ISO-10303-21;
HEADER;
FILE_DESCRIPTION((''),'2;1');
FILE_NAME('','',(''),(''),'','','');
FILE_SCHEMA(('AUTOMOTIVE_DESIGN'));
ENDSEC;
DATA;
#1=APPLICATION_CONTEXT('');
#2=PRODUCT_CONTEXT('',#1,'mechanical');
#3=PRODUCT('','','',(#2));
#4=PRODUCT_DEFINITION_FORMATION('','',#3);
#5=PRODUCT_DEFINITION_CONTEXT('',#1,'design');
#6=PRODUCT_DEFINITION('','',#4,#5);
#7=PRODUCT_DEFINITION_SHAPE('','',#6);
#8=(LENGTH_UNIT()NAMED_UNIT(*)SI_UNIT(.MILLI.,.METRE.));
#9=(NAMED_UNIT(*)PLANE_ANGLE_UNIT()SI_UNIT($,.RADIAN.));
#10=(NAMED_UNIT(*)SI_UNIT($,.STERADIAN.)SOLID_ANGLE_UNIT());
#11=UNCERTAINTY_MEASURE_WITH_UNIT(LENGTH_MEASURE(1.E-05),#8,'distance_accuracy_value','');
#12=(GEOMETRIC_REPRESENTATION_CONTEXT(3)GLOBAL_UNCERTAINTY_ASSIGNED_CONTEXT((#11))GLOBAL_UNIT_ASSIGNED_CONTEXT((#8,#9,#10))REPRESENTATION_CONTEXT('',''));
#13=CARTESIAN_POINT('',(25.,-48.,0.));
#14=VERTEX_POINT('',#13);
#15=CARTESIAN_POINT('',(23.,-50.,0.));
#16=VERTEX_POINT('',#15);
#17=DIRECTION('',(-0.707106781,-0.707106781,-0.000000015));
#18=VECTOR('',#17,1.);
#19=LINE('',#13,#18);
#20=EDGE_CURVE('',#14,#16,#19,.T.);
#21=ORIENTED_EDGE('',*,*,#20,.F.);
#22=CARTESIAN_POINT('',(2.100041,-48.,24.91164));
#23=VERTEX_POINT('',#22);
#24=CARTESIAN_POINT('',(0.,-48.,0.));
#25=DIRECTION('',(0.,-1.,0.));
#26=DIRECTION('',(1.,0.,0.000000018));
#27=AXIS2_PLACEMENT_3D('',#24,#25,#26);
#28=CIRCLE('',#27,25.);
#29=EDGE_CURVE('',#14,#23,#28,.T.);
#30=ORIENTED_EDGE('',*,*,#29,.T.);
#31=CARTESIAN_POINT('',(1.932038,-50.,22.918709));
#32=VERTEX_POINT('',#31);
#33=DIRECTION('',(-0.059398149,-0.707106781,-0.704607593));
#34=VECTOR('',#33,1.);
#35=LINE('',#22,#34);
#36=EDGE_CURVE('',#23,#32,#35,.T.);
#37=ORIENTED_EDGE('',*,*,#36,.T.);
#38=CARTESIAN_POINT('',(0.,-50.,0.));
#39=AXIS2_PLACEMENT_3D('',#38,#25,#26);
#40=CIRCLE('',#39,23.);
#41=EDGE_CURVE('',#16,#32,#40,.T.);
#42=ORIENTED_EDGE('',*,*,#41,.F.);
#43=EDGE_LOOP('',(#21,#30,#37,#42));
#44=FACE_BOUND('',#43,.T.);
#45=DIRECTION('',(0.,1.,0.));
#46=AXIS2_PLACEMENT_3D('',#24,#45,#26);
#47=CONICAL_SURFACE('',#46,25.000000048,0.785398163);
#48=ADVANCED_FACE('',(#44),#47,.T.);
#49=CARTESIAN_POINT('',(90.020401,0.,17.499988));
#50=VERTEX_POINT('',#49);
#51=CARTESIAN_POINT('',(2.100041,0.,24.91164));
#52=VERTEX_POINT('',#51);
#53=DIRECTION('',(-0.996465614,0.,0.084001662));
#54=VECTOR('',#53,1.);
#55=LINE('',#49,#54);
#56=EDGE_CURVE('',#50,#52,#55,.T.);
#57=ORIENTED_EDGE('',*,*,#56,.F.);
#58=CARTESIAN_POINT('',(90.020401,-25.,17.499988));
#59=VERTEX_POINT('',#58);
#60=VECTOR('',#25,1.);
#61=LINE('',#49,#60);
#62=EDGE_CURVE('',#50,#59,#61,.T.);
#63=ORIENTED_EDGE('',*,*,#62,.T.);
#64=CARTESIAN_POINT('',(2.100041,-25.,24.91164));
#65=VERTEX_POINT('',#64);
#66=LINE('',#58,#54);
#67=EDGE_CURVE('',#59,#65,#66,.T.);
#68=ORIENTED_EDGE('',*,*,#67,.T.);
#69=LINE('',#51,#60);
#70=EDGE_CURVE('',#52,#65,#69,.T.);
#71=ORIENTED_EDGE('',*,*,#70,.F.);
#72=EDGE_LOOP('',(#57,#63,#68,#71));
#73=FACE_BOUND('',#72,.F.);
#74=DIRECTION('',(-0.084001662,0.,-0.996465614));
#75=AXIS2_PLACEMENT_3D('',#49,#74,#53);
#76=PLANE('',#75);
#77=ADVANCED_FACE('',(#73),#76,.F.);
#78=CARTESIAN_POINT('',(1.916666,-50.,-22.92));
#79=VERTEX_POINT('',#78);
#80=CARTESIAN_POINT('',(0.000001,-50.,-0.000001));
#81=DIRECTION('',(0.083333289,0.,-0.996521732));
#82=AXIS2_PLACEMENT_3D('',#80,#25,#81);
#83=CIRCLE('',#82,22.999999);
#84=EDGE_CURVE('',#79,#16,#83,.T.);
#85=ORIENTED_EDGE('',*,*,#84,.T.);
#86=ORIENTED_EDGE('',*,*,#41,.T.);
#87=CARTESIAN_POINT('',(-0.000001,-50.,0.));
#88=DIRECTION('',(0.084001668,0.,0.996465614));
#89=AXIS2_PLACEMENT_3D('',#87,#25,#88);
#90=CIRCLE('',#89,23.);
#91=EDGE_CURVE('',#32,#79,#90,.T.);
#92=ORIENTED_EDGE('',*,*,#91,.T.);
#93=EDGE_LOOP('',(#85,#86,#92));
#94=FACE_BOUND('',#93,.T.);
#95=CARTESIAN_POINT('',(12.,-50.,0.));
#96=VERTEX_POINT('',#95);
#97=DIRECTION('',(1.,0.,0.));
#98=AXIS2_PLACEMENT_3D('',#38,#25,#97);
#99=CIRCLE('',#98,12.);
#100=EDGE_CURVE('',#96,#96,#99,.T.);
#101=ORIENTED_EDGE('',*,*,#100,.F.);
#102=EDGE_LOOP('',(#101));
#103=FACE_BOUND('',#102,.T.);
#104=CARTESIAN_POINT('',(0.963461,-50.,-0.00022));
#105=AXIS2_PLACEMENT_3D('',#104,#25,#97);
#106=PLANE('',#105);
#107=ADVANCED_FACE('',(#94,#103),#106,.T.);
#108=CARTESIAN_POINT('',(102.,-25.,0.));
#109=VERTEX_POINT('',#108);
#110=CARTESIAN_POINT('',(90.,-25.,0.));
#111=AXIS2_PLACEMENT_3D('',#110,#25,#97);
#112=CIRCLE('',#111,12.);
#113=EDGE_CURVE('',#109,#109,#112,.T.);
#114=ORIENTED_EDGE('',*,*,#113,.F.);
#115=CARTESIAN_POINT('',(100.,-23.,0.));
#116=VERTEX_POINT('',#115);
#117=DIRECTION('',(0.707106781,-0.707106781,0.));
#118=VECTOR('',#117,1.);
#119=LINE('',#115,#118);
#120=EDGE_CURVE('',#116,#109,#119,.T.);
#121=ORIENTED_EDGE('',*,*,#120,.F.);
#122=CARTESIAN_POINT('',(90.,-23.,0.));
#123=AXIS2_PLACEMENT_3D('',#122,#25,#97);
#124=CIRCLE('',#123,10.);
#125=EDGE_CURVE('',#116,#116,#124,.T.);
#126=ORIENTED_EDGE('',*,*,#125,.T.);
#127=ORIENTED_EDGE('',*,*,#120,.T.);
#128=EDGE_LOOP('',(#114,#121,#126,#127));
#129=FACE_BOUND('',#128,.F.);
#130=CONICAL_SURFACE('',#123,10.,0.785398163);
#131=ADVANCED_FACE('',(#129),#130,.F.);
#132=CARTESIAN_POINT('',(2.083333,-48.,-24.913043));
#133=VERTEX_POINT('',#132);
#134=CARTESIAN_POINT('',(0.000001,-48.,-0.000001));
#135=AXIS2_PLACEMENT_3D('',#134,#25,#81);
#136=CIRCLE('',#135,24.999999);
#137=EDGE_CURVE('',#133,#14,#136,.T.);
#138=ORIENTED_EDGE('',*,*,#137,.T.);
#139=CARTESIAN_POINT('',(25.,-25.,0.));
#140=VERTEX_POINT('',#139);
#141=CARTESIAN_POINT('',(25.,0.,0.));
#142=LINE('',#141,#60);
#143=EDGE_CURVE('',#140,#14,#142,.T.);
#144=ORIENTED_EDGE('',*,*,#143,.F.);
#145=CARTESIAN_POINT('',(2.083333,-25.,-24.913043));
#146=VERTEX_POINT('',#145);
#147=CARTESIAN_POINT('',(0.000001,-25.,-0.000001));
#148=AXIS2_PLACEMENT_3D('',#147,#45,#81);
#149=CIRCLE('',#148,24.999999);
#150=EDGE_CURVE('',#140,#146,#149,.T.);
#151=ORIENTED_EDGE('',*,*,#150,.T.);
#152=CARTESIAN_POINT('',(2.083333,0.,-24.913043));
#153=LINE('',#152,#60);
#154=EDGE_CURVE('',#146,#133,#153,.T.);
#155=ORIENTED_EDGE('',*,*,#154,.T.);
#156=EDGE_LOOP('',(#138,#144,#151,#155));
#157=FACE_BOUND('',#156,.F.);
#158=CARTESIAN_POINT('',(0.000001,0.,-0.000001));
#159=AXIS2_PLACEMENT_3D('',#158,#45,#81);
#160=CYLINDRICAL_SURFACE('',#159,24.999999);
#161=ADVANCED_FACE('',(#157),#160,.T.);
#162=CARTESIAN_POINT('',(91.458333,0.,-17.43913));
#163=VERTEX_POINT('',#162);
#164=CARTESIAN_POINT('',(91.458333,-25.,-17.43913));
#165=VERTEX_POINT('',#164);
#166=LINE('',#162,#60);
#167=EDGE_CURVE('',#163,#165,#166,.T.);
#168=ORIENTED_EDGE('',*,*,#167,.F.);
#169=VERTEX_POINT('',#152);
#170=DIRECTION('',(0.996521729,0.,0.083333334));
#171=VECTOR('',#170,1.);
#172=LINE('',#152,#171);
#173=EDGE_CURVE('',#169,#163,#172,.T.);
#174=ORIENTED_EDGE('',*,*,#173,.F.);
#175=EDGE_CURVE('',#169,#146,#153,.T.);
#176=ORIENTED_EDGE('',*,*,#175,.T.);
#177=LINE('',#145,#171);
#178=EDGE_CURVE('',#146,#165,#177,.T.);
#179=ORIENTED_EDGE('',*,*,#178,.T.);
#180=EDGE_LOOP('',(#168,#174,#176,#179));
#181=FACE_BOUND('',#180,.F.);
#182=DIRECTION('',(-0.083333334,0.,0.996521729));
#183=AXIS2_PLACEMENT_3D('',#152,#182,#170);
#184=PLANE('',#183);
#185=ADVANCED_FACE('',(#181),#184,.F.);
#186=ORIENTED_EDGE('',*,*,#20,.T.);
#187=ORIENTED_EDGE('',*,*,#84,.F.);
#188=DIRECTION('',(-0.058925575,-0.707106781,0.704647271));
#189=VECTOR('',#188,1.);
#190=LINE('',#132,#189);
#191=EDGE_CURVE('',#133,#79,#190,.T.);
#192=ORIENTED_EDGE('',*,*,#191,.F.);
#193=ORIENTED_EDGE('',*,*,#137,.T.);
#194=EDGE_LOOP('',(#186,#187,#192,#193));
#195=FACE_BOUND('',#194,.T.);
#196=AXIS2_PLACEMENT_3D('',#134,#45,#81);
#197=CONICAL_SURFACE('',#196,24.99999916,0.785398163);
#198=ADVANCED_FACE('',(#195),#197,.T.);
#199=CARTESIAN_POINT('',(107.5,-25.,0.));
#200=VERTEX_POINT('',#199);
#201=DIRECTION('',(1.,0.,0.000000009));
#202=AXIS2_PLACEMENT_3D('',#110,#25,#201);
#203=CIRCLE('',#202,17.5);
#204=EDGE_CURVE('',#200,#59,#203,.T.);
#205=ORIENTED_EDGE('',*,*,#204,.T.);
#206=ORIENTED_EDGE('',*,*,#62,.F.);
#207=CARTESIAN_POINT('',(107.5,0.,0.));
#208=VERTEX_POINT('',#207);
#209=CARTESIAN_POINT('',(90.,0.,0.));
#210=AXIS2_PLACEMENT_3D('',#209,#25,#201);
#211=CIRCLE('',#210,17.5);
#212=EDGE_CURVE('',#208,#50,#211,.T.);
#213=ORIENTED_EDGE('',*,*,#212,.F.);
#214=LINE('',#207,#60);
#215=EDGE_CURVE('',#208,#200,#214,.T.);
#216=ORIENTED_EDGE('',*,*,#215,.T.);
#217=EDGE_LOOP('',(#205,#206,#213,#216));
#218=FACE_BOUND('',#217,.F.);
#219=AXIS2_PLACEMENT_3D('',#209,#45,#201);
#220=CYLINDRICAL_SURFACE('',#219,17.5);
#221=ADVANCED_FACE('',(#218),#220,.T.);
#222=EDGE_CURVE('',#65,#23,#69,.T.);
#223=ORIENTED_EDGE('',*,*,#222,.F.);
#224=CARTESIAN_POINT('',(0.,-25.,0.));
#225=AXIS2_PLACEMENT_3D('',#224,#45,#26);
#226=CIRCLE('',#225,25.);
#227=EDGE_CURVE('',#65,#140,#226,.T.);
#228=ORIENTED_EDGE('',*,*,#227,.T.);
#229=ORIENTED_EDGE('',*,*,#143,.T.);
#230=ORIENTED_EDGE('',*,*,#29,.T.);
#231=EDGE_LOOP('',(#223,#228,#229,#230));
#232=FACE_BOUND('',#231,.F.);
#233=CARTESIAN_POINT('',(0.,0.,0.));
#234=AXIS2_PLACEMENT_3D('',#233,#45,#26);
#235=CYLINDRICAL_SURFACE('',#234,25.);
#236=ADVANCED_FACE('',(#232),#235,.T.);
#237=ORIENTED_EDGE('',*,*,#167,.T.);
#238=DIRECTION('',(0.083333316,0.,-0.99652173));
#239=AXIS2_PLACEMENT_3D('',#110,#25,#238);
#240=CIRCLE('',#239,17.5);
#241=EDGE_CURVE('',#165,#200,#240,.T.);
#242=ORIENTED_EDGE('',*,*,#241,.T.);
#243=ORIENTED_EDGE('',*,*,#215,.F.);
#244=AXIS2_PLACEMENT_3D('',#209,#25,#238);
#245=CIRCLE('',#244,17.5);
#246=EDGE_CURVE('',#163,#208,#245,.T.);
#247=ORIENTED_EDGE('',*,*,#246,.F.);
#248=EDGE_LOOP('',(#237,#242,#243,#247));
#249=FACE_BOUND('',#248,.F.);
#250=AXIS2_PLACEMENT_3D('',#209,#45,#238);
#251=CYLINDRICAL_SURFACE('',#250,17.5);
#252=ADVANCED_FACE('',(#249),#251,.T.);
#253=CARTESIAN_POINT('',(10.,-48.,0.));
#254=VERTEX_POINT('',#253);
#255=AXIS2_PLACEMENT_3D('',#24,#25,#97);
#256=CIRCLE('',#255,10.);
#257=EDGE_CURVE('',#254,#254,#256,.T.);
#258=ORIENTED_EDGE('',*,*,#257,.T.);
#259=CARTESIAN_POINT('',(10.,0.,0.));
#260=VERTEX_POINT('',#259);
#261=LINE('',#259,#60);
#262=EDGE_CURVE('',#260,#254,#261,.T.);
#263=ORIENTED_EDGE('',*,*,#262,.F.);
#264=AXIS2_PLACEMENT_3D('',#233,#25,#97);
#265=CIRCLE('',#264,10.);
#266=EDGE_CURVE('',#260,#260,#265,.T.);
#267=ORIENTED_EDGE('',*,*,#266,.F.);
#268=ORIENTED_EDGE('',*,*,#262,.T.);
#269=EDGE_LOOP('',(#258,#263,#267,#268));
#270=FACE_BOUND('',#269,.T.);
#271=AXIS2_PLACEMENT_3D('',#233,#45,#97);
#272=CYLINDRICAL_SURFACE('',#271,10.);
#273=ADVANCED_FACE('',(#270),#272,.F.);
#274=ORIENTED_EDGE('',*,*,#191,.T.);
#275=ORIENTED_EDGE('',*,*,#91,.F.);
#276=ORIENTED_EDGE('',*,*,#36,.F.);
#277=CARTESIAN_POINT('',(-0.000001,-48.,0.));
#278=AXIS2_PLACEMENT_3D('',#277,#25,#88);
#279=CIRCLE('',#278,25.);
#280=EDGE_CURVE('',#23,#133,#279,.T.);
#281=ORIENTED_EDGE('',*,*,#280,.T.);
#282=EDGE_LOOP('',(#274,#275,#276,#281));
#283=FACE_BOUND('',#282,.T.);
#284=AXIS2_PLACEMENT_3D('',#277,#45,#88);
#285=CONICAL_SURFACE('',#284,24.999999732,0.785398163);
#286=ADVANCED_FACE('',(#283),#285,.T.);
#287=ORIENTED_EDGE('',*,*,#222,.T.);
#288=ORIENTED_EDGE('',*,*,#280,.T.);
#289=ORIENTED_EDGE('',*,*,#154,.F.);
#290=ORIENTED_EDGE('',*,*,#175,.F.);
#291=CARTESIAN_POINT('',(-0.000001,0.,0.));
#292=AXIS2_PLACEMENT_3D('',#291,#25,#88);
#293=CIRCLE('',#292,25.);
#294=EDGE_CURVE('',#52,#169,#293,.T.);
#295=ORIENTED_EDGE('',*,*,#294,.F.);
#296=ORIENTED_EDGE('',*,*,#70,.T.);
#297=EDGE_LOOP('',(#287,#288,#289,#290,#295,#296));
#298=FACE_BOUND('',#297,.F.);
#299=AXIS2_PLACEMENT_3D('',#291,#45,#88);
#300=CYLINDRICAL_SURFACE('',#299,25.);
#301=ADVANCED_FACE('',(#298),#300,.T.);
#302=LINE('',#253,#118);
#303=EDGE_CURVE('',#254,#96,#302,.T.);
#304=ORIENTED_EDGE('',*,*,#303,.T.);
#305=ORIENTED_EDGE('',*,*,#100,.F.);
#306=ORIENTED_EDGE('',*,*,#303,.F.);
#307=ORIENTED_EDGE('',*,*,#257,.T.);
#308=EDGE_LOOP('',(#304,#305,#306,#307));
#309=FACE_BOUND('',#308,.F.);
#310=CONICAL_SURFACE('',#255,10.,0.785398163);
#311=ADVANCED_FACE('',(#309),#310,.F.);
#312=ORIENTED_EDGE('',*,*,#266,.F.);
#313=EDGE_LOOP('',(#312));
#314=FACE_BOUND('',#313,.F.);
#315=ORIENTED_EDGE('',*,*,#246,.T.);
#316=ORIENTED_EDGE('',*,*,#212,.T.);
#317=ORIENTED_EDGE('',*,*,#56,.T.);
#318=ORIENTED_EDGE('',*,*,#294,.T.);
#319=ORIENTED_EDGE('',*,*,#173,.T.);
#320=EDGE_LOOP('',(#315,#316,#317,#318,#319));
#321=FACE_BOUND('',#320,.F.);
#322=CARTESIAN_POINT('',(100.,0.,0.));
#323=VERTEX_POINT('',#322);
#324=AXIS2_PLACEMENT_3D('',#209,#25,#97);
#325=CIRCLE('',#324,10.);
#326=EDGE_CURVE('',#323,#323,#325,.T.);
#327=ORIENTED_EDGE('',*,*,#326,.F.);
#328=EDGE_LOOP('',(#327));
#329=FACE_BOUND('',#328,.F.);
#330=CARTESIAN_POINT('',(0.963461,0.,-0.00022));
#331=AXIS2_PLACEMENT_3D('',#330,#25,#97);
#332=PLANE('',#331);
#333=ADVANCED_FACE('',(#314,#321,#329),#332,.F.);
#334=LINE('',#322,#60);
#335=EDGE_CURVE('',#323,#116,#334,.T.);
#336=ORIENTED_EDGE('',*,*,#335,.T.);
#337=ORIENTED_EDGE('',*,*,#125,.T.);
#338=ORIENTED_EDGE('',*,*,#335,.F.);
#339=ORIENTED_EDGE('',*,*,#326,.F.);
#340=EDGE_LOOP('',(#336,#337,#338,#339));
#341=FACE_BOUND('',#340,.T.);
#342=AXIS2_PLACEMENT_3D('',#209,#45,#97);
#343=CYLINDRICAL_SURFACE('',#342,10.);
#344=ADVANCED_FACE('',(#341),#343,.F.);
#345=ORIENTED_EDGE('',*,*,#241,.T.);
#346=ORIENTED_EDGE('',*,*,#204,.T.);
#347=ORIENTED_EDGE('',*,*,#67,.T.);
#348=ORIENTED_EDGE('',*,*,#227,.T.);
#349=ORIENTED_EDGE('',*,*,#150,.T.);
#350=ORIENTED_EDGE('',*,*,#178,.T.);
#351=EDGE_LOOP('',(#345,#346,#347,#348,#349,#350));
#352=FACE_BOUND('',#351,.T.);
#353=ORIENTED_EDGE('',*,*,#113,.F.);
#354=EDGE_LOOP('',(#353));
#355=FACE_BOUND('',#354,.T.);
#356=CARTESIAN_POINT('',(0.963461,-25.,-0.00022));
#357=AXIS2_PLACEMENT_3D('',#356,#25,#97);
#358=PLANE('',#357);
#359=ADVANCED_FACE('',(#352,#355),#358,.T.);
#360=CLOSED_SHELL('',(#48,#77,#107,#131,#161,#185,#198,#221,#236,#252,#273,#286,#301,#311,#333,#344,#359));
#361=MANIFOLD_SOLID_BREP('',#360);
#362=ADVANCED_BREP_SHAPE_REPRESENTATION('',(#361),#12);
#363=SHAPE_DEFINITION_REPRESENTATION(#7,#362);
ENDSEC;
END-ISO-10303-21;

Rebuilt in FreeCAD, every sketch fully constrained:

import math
import FreeCAD as App
import Part
import Sketcher

V = App.Vector
Q = App.Units.Quantity


def edges_at(feature, points):
    """Names of the edges that pass closest to the given points."""
    edges = feature.Shape.Edges
    near = lambda p: min(range(len(edges)), key=lambda i: edges[i].distToShape(Part.Vertex(*p))[0])
    return sorted({f"Edge{near(p) + 1}" for p in points})

doc = App.newDocument("Part")
body = doc.addObject("PartDesign::Body", "Body")

# Sketch on XZ plane
sketch1 = doc.addObject("Sketcher::SketchObject", "Sketch")
body.addObject(sketch1)
sketch1.AttachmentSupport = (doc.XZ_Plane, [""])
sketch1.MapMode = "FlatFace"
sketch1.addGeometry([
    Part.ArcOfCircle(Part.Circle(V(0, 0, 0), V(0, 0, 1), 25), math.radians(85), math.radians(275)),  # 0
    Part.LineSegment(V(2, -25, 0), V(91, -17, 0)),  # 1
    Part.ArcOfCircle(Part.Circle(V(90, 0, 0), V(0, 0, 1), 18), math.radians(-85), math.radians(0)),  # 2
    Part.ArcOfCircle(Part.Circle(V(90, 0, 0), V(0, 0, 1), 18), math.radians(0), math.radians(90)),  # 3
    Part.LineSegment(V(90, 17, 0), V(2, 25, 0)),  # 4
    Part.Circle(V(0, 0, 0), V(0, 0, 1), 10),  # 5
    Part.Circle(V(90, 0, 0), V(0, 0, 1), 10),  # 6
], False)
sketch1.addConstraint([
    Sketcher.Constraint("Tangent", 0, 2, 1, 1),
    Sketcher.Constraint("Tangent", 1, 2, 2, 1),
    Sketcher.Constraint("Tangent", 2, 2, 3, 1),
    Sketcher.Constraint("Coincident", 3, 2, 4, 1),
    Sketcher.Constraint("Tangent", 4, 2, 0, 1),
    Sketcher.Constraint("Coincident", 0, 3, -1, 1),
    Sketcher.Constraint("Coincident", 5, 3, -1, 1),
    Sketcher.Constraint("Coincident", 6, 3, 2, 3),
    Sketcher.Constraint("Equal", 2, 3),
    Sketcher.Constraint("Equal", 5, 6),
    Sketcher.Constraint("PointOnObject", 2, 3, -1),
    Sketcher.Constraint("PointOnObject", 2, 2, -1),
    Sketcher.Constraint("Diameter", 5, Q("20 mm")),
    Sketcher.Constraint("Radius", 0, Q("25 mm")),
    Sketcher.Constraint("Radius", 2, Q("17.5 mm")),
    Sketcher.Constraint("DistanceX", -1, 1, 2, 3, Q("90 mm")),
    Sketcher.Constraint("DistanceX", -1, 1, 3, 2, Q("90.020401 mm")),
])
pad1 = doc.addObject("PartDesign::Pad", "Pad")
body.addObject(pad1)
pad1.Profile = sketch1
pad1.Length = 25

# Sketch on XZ plane
sketch2 = doc.addObject("Sketcher::SketchObject", "Sketch001")
body.addObject(sketch2)
sketch2.AttachmentSupport = (doc.XZ_Plane, [""])
sketch2.MapMode = "FlatFace"
sketch2.addGeometry([
    Part.ArcOfCircle(Part.Circle(V(0, 0, 0), V(0, 0, 1), 25), math.radians(0), math.radians(85)),
    Part.ArcOfCircle(Part.Circle(V(0, 0, 0), V(0, 0, 1), 25), math.radians(85), math.radians(275)),
    Part.ArcOfCircle(Part.Circle(V(0, 0, 0), V(0, 0, 1), 25), math.radians(-85), math.radians(0)),
    Part.Circle(V(0, 0, 0), V(0, 0, 1), 10),
], False)
sketch2.addConstraint([
    Sketcher.Constraint("Tangent", 0, 2, 1, 1),
    Sketcher.Constraint("Tangent", 1, 2, 2, 1),
    Sketcher.Constraint("Tangent", 2, 2, 0, 1),
    Sketcher.Constraint("Coincident", 0, 3, -1, 1),
    Sketcher.Constraint("Coincident", 3, 3, -1, 1),
    Sketcher.Constraint("PointOnObject", 2, 2, -1),
    Sketcher.Constraint("Diameter", 3, Q("20 mm")),
    Sketcher.Constraint("Radius", 0, Q("25 mm")),
    Sketcher.Constraint("DistanceX", -1, 1, 0, 2, Q("2.100041 mm")),
    Sketcher.Constraint("DistanceX", 1, 2, 0, 2, Q("0.016708 mm")),
])
pad2 = doc.addObject("PartDesign::Pad", "Pad001")
body.addObject(pad2)
pad2.Profile = sketch2
pad2.Length = 50
doc.recompute()

chamfer = doc.addObject("PartDesign::Chamfer", "Chamfer")
body.addObject(chamfer)
chamfer.Base = (pad2, edges_at(pad2, [(-25, -50, 0.008), (-10, -50, 0), (80, -25, 0)]))
chamfer.Size = 2

doc.recompute()
